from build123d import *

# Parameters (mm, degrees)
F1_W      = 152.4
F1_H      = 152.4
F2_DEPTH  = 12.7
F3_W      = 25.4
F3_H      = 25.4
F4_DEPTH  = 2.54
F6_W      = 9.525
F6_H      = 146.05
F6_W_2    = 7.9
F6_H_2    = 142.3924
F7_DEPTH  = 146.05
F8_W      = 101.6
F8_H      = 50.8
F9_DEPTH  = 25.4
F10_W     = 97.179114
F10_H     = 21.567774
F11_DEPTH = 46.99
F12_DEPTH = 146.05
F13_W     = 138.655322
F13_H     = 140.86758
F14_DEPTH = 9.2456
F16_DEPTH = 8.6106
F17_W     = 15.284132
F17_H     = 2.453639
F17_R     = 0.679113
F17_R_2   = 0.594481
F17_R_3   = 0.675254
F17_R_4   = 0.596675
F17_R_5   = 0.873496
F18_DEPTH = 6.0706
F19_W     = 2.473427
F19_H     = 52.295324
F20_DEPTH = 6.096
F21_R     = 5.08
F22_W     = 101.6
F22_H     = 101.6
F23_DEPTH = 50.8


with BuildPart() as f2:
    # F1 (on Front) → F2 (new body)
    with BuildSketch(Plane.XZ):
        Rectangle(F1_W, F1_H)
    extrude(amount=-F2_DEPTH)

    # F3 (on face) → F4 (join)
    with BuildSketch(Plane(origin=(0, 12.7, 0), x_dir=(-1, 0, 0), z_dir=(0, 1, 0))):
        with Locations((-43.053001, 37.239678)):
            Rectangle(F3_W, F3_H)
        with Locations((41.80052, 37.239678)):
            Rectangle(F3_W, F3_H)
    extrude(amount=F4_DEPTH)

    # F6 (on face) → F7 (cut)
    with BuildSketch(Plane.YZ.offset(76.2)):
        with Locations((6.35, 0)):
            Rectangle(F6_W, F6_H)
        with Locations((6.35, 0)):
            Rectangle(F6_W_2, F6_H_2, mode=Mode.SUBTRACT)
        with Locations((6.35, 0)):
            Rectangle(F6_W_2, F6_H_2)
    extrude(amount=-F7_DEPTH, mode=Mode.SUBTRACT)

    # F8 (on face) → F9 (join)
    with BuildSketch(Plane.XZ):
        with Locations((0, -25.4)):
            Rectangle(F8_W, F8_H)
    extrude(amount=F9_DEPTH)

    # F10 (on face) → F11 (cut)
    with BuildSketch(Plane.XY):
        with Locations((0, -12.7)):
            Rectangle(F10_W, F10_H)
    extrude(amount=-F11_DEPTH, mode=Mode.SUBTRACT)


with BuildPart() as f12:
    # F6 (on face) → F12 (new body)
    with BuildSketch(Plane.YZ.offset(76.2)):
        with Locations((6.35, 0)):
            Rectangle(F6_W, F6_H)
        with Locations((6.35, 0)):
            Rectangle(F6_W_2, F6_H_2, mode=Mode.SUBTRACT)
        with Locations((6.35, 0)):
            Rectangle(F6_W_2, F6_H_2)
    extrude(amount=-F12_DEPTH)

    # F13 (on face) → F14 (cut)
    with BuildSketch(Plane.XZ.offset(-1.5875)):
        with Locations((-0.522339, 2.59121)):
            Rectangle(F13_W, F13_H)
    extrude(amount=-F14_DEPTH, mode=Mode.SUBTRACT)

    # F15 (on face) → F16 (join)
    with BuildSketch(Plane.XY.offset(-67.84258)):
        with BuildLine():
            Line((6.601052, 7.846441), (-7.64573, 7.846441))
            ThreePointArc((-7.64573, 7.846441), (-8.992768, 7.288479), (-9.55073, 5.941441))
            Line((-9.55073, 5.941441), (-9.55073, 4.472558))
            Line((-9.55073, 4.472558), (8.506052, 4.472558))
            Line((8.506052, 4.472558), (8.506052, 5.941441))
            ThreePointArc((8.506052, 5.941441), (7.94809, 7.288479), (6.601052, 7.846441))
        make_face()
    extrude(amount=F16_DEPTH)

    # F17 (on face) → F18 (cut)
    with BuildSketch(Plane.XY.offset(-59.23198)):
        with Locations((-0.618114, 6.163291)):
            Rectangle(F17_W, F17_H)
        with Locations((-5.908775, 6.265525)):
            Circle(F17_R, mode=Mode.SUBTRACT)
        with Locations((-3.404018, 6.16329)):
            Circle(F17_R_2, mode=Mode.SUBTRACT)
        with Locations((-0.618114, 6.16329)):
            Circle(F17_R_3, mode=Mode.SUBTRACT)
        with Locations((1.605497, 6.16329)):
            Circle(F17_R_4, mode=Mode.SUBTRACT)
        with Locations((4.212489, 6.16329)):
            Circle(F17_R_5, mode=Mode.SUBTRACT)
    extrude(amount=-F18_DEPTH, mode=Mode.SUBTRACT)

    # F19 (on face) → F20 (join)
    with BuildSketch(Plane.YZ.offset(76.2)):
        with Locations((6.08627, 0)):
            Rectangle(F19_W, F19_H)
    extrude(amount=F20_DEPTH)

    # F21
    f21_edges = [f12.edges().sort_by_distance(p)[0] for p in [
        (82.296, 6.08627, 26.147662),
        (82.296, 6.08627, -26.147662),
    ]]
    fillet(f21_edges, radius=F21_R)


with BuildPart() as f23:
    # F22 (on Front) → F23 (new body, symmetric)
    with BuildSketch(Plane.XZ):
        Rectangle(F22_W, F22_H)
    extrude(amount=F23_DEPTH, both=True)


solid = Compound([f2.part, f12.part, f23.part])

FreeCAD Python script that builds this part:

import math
import FreeCAD as App
import Part
import Sketcher
Q = App.Units.Quantity


def edges_at(feature, points):
    """Names of the edges that pass closest to the given points."""
    edges = feature.Shape.Edges
    near = lambda p: min(range(len(edges)), key=lambda i: edges[i].distToShape(Part.Vertex(*p))[0])
    return sorted({f"Edge{near(p) + 1}" for p in points})

doc = App.newDocument("Part")
body = doc.addObject("PartDesign::Body", "Body")

sketch1 = body.newObject("Sketcher::SketchObject", "Sketch")
sketch1.AttachmentSupport = (doc.getObject("XZ_Plane"), [""])
sketch1.MapMode = "FlatFace"
sketch1.addGeometry([
    Part.LineSegment(App.Vector(-76.2, 76.2, 0), App.Vector(-76.2, -76.2, 0)),
    Part.LineSegment(App.Vector(-76.2, -76.2, 0), App.Vector(76.2, -76.2, 0)),
    Part.LineSegment(App.Vector(76.2, -76.2, 0), App.Vector(76.2, 76.2, 0)),
    Part.LineSegment(App.Vector(76.2, 76.2, 0), App.Vector(-76.2, 76.2, 0)),
], False)
sketch1.addConstraint([
    Sketcher.Constraint("Coincident", 0, 2, 1, 1),
    Sketcher.Constraint("Coincident", 1, 2, 2, 1),
    Sketcher.Constraint("Coincident", 2, 2, 3, 1),
    Sketcher.Constraint("Coincident", 3, 2, 0, 1),
    Sketcher.Constraint("Vertical", 0),
    Sketcher.Constraint("Horizontal", 1),
    Sketcher.Constraint("Vertical", 2),
    Sketcher.Constraint("Horizontal", 3),
    Sketcher.Constraint("Symmetric", 0, 2, 2, 2, -1, 1),
    Sketcher.Constraint("Equal", 3, 0),
    Sketcher.Constraint("DistanceX", 1, 1, 1, 2, Q("6 in")),
])
pad1 = body.newObject("PartDesign::Pad", "Pad")
pad1.Profile = sketch1
pad1.Length = Q("0.5 in")
pad1.Reversed = True

sketch2 = body.newObject("Sketcher::SketchObject", "Sketch001")
sketch2.AttachmentSupport = (doc.getObject("XZ_Plane"), [""])
sketch2.MapMode = "FlatFace"
sketch2.AttachmentOffset = App.Placement(App.Vector(0, 0, -0.5 * 25.4), App.Rotation())
sketch2.addGeometry([
    Part.LineSegment(App.Vector(55.753001, 49.939678, 0), App.Vector(55.753001, 24.539678, 0)),
    Part.LineSegment(App.Vector(55.753001, 24.539678, 0), App.Vector(30.353001, 24.539678, 0)),
    Part.LineSegment(App.Vector(30.353001, 24.539678, 0), App.Vector(30.353001, 49.939678, 0)),
    Part.LineSegment(App.Vector(30.353001, 49.939678, 0), App.Vector(55.753001, 49.939678, 0)),
    Part.LineSegment(App.Vector(-29.10052, 49.939678, 0), App.Vector(-29.10052, 24.539678, 0)),
    Part.LineSegment(App.Vector(-29.10052, 24.539678, 0), App.Vector(-54.50052, 24.539678, 0)),
    Part.LineSegment(App.Vector(-54.50052, 24.539678, 0), App.Vector(-54.50052, 49.939678, 0)),
    Part.LineSegment(App.Vector(-54.50052, 49.939678, 0), App.Vector(-29.10052, 49.939678, 0)),
], False)
sketch2.addConstraint([
    Sketcher.Constraint("Coincident", 0, 2, 1, 1),
    Sketcher.Constraint("Coincident", 1, 2, 2, 1),
    Sketcher.Constraint("Coincident", 2, 2, 3, 1),
    Sketcher.Constraint("Coincident", 3, 2, 0, 1),
    Sketcher.Constraint("Coincident", 4, 2, 5, 1),
    Sketcher.Constraint("Coincident", 5, 2, 6, 1),
    Sketcher.Constraint("Coincident", 6, 2, 7, 1),
    Sketcher.Constraint("Coincident", 7, 2, 4, 1),
    Sketcher.Constraint("Vertical", 0),
    Sketcher.Constraint("Horizontal", 1),
    Sketcher.Constraint("Vertical", 2),
    Sketcher.Constraint("Horizontal", 3),
    Sketcher.Constraint("Vertical", 4),
    Sketcher.Constraint("Horizontal", 5),
    Sketcher.Constraint("Vertical", 6),
    Sketcher.Constraint("Horizontal", 7),
    Sketcher.Constraint("Horizontal", 1, 2, 4, 2),
    Sketcher.Constraint("Horizontal", 3, 2, 6, 2),
    Sketcher.Constraint("Equal", 3, 5),
    Sketcher.Constraint("Equal", 7, 0),
    Sketcher.Constraint("DistanceX", 1, 2, 1, 1, Q("1 in")),
    Sketcher.Constraint("DistanceX", -1, 1, 0, 2, Q("2.195 in")),
    Sketcher.Constraint("DistanceX", 4, 2, -1, 1, 29.10052),
    Sketcher.Constraint("DistanceY", -1, 1, 0, 2, 24.539678),
])
pad2 = body.newObject("PartDesign::Pad", "Pad001")
pad2.Profile = sketch2
pad2.Length = Q("0.1 in")
pad2.Reversed = True

sketch3 = body.newObject("Sketcher::SketchObject", "Sketch002")
sketch3.AttachmentSupport = (doc.getObject("YZ_Plane"), [""])
sketch3.MapMode = "FlatFace"
sketch3.AttachmentOffset = App.Placement(App.Vector(0, 0, 3 * 25.4), App.Rotation())
sketch3.addGeometry([
    Part.LineSegment(App.Vector(1.5875, 73.025, 0), App.Vector(1.5875, -73.025, 0)),
    Part.LineSegment(App.Vector(1.5875, -73.025, 0), App.Vector(11.1125, -73.025, 0)),
    Part.LineSegment(App.Vector(11.1125, -73.025, 0), App.Vector(11.1125, 73.025, 0)),
    Part.LineSegment(App.Vector(11.1125, 73.025, 0), App.Vector(1.5875, 73.025, 0)),
], False)
sketch3.addConstraint([
    Sketcher.Constraint("Coincident", 0, 2, 1, 1),
    Sketcher.Constraint("Coincident", 1, 2, 2, 1),
    Sketcher.Constraint("Coincident", 2, 2, 3, 1),
    Sketcher.Constraint("Coincident", 3, 2, 0, 1),
    Sketcher.Constraint("Vertical", 0),
    Sketcher.Constraint("Horizontal", 1),
    Sketcher.Constraint("Vertical", 2),
    Sketcher.Constraint("Horizontal", 3),
    Sketcher.Constraint("DistanceY", 0, 2, 0, 1, Q("5.75 in")),
    Sketcher.Constraint("DistanceX", 1, 1, 1, 2, Q("0.375 in")),
    Sketcher.Constraint("DistanceX", -1, 1, 0, 2, Q("0.0625 in")),
    Sketcher.Constraint("DistanceY", 0, 2, -1, 1, Q("2.875 in")),
])
pocket1 = body.newObject("PartDesign::Pocket", "Pocket")
pocket1.Profile = sketch3
pocket1.Length = Q("5.75 in")

sketch4 = body.newObject("Sketcher::SketchObject", "Sketch003")
sketch4.AttachmentSupport = (doc.getObject("XZ_Plane"), [""])
sketch4.MapMode = "FlatFace"
sketch4.addGeometry([
    Part.LineSegment(App.Vector(-50.8, 0, 0), App.Vector(-50.8, -50.8, 0)),
    Part.LineSegment(App.Vector(-50.8, -50.8, 0), App.Vector(50.8, -50.8, 0)),
    Part.LineSegment(App.Vector(50.8, -50.8, 0), App.Vector(50.8, 0, 0)),
    Part.LineSegment(App.Vector(50.8, 0, 0), App.Vector(-50.8, 0, 0)),
], False)
sketch4.addConstraint([
    Sketcher.Constraint("Coincident", 0, 2, 1, 1),
    Sketcher.Constraint("Coincident", 1, 2, 2, 1),
    Sketcher.Constraint("Coincident", 2, 2, 3, 1),
    Sketcher.Constraint("Coincident", 3, 2, 0, 1),
    Sketcher.Constraint("Vertical", 0),
    Sketcher.Constraint("Horizontal", 1),
    Sketcher.Constraint("Vertical", 2),
    Sketcher.Constraint("Horizontal", 3),
    Sketcher.Constraint("Symmetric", 2, 2, 3, 2, -1, 1),
    Sketcher.Constraint("DistanceX", 1, 1, 1, 2, Q("4 in")),
    Sketcher.Constraint("DistanceY", 0, 2, 0, 1, Q("2 in")),
])
pad3 = body.newObject("PartDesign::Pad", "Pad002")
pad3.Profile = sketch4
pad3.Length = Q("1 in")

sketch5 = body.newObject("Sketcher::SketchObject", "Sketch004")
sketch5.AttachmentSupport = (doc.getObject("XY_Plane"), [""])
sketch5.MapMode = "FlatFace"
sketch5.addGeometry([
    Part.LineSegment(App.Vector(-48.589557, -1.916113, 0), App.Vector(-48.589557, -23.483887, 0)),
    Part.LineSegment(App.Vector(-48.589557, -23.483887, 0), App.Vector(48.589557, -23.483887, 0)),
    Part.LineSegment(App.Vector(48.589557, -23.483887, 0), App.Vector(48.589557, -1.916113, 0)),
    Part.LineSegment(App.Vector(48.589557, -1.916113, 0), App.Vector(-48.589557, -1.916113, 0)),
], False)
sketch5.addConstraint([
    Sketcher.Constraint("Coincident", 0, 2, 1, 1),
    Sketcher.Constraint("Coincident", 1, 2, 2, 1),
    Sketcher.Constraint("Coincident", 2, 2, 3, 1),
    Sketcher.Constraint("Coincident", 3, 2, 0, 1),
    Sketcher.Constraint("Vertical", 0),
    Sketcher.Constraint("Horizontal", 1),
    Sketcher.Constraint("Vertical", 2),
    Sketcher.Constraint("Horizontal", 3),
    Sketcher.Constraint("DistanceX", 1, 1, 1, 2, 97.179114),
    Sketcher.Constraint("DistanceY", 0, 2, 0, 1, 21.567774),
    Sketcher.Constraint("DistanceX", 0, 2, -1, 1, 48.589557),
    Sketcher.Constraint("DistanceY", 0, 2, -1, 1, 23.483887),
])
pocket2 = body.newObject("PartDesign::Pocket", "Pocket001")
pocket2.Profile = sketch5
pocket2.Length = Q("1.85 in")
body2 = doc.addObject("PartDesign::Body", "Body001")

sketch6 = body2.newObject("Sketcher::SketchObject", "Sketch005")
sketch6.AttachmentSupport = (doc.getObject("YZ_Plane001"), [""])
sketch6.MapMode = "FlatFace"
sketch6.AttachmentOffset = App.Placement(App.Vector(0, 0, 3 * 25.4), App.Rotation())
sketch6.addGeometry([
    Part.LineSegment(App.Vector(1.5875, 73.025, 0), App.Vector(1.5875, -73.025, 0)),
    Part.LineSegment(App.Vector(1.5875, -73.025, 0), App.Vector(11.1125, -73.025, 0)),
    Part.LineSegment(App.Vector(11.1125, -73.025, 0), App.Vector(11.1125, 73.025, 0)),
    Part.LineSegment(App.Vector(11.1125, 73.025, 0), App.Vector(1.5875, 73.025, 0)),
], False)
sketch6.addConstraint([
    Sketcher.Constraint("Coincident", 0, 2, 1, 1),
    Sketcher.Constraint("Coincident", 1, 2, 2, 1),
    Sketcher.Constraint("Coincident", 2, 2, 3, 1),
    Sketcher.Constraint("Coincident", 3, 2, 0, 1),
    Sketcher.Constraint("Vertical", 0),
    Sketcher.Constraint("Horizontal", 1),
    Sketcher.Constraint("Vertical", 2),
    Sketcher.Constraint("Horizontal", 3),
    Sketcher.Constraint("DistanceY", 0, 2, 0, 1, Q("5.75 in")),
    Sketcher.Constraint("DistanceX", 1, 1, 1, 2, Q("0.375 in")),
    Sketcher.Constraint("DistanceX", -1, 1, 0, 2, Q("0.0625 in")),
    Sketcher.Constraint("DistanceY", 0, 2, -1, 1, Q("2.875 in")),
])
pad4 = body2.newObject("PartDesign::Pad", "Pad003")
pad4.Profile = sketch6
pad4.Length = Q("5.75 in")
pad4.Reversed = True

sketch7 = body2.newObject("Sketcher::SketchObject", "Sketch006")
sketch7.AttachmentSupport = (doc.getObject("XZ_Plane001"), [""])
sketch7.MapMode = "FlatFace"
sketch7.AttachmentOffset = App.Placement(App.Vector(0, 0, -0.0625 * 25.4), App.Rotation())
sketch7.addGeometry([
    Part.LineSegment(App.Vector(-69.85, 73.025, 0), App.Vector(-69.85, -67.84258, 0)),
    Part.LineSegment(App.Vector(-69.85, -67.84258, 0), App.Vector(68.805322, -67.84258, 0)),
    Part.LineSegment(App.Vector(68.805322, -67.84258, 0), App.Vector(68.805322, 73.025, 0)),
    Part.LineSegment(App.Vector(68.805322, 73.025, 0), App.Vector(-69.85, 73.025, 0)),
], False)
sketch7.addConstraint([
    Sketcher.Constraint("Coincident", 0, 2, 1, 1),
    Sketcher.Constraint("Coincident", 1, 2, 2, 1),
    Sketcher.Constraint("Coincident", 2, 2, 3, 1),
    Sketcher.Constraint("Coincident", 3, 2, 0, 1),
    Sketcher.Constraint("Vertical", 0),
    Sketcher.Constraint("Horizontal", 1),
    Sketcher.Constraint("Vertical", 2),
    Sketcher.Constraint("Horizontal", 3),
    Sketcher.Constraint("DistanceX", 0, 2, -1, 1, Q("2.75 in")),
    Sketcher.Constraint("DistanceY", -1, 1, 2, 2, Q("2.875 in")),
    Sketcher.Constraint("DistanceY", 0, 2, 0, 1, 140.86758),
    Sketcher.Constraint("DistanceX", 1, 1, 1, 2, 138.655322),
])
pocket3 = body2.newObject("PartDesign::Pocket", "Pocket002")
pocket3.Profile = sketch7
pocket3.Length = Q("0.364 in")

sketch8 = body2.newObject("Sketcher::SketchObject", "Sketch007")
sketch8.AttachmentSupport = (doc.getObject("XY_Plane001"), [""])
sketch8.MapMode = "FlatFace"
sketch8.AttachmentOffset = App.Placement(App.Vector(0, 0, -67.84258), App.Rotation())
sketch8.addGeometry([
    Part.LineSegment(App.Vector(6.601052, 7.846441, 0), App.Vector(-7.64573, 7.846441, 0)),
    Part.ArcOfCircle(Part.Circle(App.Vector(-7.645729, 5.94144, 0), App.Vector(0, 0, 1), 1.905001), math.radians(90.000043), math.radians(179.999957)),
    Part.LineSegment(App.Vector(-9.55073, 5.941441, 0), App.Vector(-9.55073, 4.472558, 0)),
    Part.LineSegment(App.Vector(-9.55073, 4.472558, 0), App.Vector(8.506052, 4.472558, 0)),
    Part.LineSegment(App.Vector(8.506052, 4.472558, 0), App.Vector(8.506052, 5.941441, 0)),
    Part.ArcOfCircle(Part.Circle(App.Vector(6.601051, 5.94144, 0), App.Vector(0, 0, 1), 1.905001), math.radians(0.000043), math.radians(89.999957)),
], False)
sketch8.addConstraint([
    Sketcher.Constraint("Tangent", 0, 2, 1, 1),
    Sketcher.Constraint("Tangent", 1, 2, 2, 1),
    Sketcher.Constraint("Coincident", 2, 2, 3, 1),
    Sketcher.Constraint("Coincident", 3, 2, 4, 1),
    Sketcher.Constraint("Tangent", 4, 2, 5, 1),
    Sketcher.Constraint("Tangent", 5, 2, 0, 1),
    Sketcher.Constraint("Horizontal", 0),
    Sketcher.Constraint("Vertical", 2),
    Sketcher.Constraint("Horizontal", 3),
    Sketcher.Constraint("Vertical", 4),
    Sketcher.Constraint("Equal", 1, 5),
    Sketcher.Constraint("Radius", 1, Q("0.0750001 in")),
    Sketcher.Constraint("DistanceX", 3, 1, 3, 2, 18.056782),
    Sketcher.Constraint("DistanceY", 2, 2, 2, 1, 1.468883),
    Sketcher.Constraint("DistanceX", 1, 3, -1, 1, 7.645729),
    Sketcher.Constraint("DistanceY", -1, 1, 1, 3, 5.94144),
])
pad5 = body2.newObject("PartDesign::Pad", "Pad004")
pad5.Profile = sketch8
pad5.Length = Q("0.339 in")

sketch9 = body2.newObject("Sketcher::SketchObject", "Sketch008")
sketch9.AttachmentSupport = (doc.getObject("XY_Plane001"), [""])
sketch9.MapMode = "FlatFace"
sketch9.AttachmentOffset = App.Placement(App.Vector(0, 0, -59.23198), App.Rotation())
sketch9.addGeometry([
    Part.LineSegment(App.Vector(-8.26018, 7.39011, 0), App.Vector(-8.26018, 4.936471, 0)),
    Part.LineSegment(App.Vector(-8.26018, 4.936471, 0), App.Vector(7.023952, 4.936471, 0)),
    Part.LineSegment(App.Vector(7.023952, 4.936471, 0), App.Vector(7.023952, 7.39011, 0)),
    Part.LineSegment(App.Vector(7.023952, 7.39011, 0), App.Vector(-8.26018, 7.39011, 0)),
    Part.Circle(App.Vector(-5.908775, 6.265525, 0), App.Vector(0, 0, 1), 0.679113),
    Part.Circle(App.Vector(-3.404018, 6.16329, 0), App.Vector(0, 0, 1), 0.594481),
    Part.Circle(App.Vector(-0.618114, 6.16329, 0), App.Vector(0, 0, 1), 0.675254),
    Part.Circle(App.Vector(1.605497, 6.16329, 0), App.Vector(0, 0, 1), 0.596675),
    Part.Circle(App.Vector(4.212489, 6.16329, 0), App.Vector(0, 0, 1), 0.873496),
], False)
sketch9.addConstraint([
    Sketcher.Constraint("Coincident", 0, 2, 1, 1),
    Sketcher.Constraint("Coincident", 1, 2, 2, 1),
    Sketcher.Constraint("Coincident", 2, 2, 3, 1),
    Sketcher.Constraint("Coincident", 3, 2, 0, 1),
    Sketcher.Constraint("Vertical", 0),
    Sketcher.Constraint("Horizontal", 1),
    Sketcher.Constraint("Vertical", 2),
    Sketcher.Constraint("Horizontal", 3),
    Sketcher.Constraint("Horizontal", 5, 3, 6, 3),
    Sketcher.Constraint("Horizontal", 6, 3, 7, 3),
    Sketcher.Constraint("Horizontal", 7, 3, 8, 3),
    Sketcher.Constraint("Diameter", 7, 1.19335),
    Sketcher.Constraint("DistanceY", 0, 2, 0, 1, Q("0.0966 in")),
    Sketcher.Constraint("Diameter", 4, 1.358226),
    Sketcher.Constraint("Diameter", 5, 1.188962),
    Sketcher.Constraint("Diameter", 6, 1.350508),
    Sketcher.Constraint("Diameter", 8, 1.746992),
    Sketcher.Constraint("DistanceY", 0, 2, 5, 3, Q("0.0482999 in")),
    Sketcher.Constraint("DistanceX", 1, 1, 1, 2, 15.284132),
    Sketcher.Constraint("DistanceX", 5, 3, -1, 1, 3.404018),
    Sketcher.Constraint("DistanceY", -1, 1, 5, 3, 6.16329),
    Sketcher.Constraint("DistanceX", -1, 1, 8, 3, 4.212489),
    Sketcher.Constraint("DistanceX", 0, 2, -1, 1, 8.26018),
    Sketcher.Constraint("DistanceX", 4, 3, 6, 3, 5.290661),
    Sketcher.Constraint("DistanceX", 6, 3, 7, 3, 2.223611),
    Sketcher.Constraint("DistanceX", 7, 3, 8, 3, 2.606992),
    Sketcher.Constraint("DistanceY", -1, 1, 4, 3, 6.265525),
])
pocket4 = body2.newObject("PartDesign::Pocket", "Pocket003")
pocket4.Profile = sketch9
pocket4.Length = Q("0.239 in")

sketch10 = body2.newObject("Sketcher::SketchObject", "Sketch009")
sketch10.AttachmentSupport = (doc.getObject("YZ_Plane001"), [""])
sketch10.MapMode = "FlatFace"
sketch10.AttachmentOffset = App.Placement(App.Vector(0, 0, 3 * 25.4), App.Rotation())
sketch10.addGeometry([
    Part.LineSegment(App.Vector(4.849557, 26.147662, 0), App.Vector(4.849557, -26.147662, 0)),
    Part.LineSegment(App.Vector(4.849557, -26.147662, 0), App.Vector(7.322984, -26.147662, 0)),
    Part.LineSegment(App.Vector(7.322984, -26.147662, 0), App.Vector(7.322984, 26.147662, 0)),
    Part.LineSegment(App.Vector(7.322984, 26.147662, 0), App.Vector(4.849557, 26.147662, 0)),
], False)
sketch10.addConstraint([
    Sketcher.Constraint("Coincident", 0, 2, 1, 1),
    Sketcher.Constraint("Coincident", 1, 2, 2, 1),
    Sketcher.Constraint("Coincident", 2, 2, 3, 1),
    Sketcher.Constraint("Coincident", 3, 2, 0, 1),
    Sketcher.Constraint("Vertical", 0),
    Sketcher.Constraint("Horizontal", 1),
    Sketcher.Constraint("Vertical", 2),
    Sketcher.Constraint("Horizontal", 3),
    Sketcher.Constraint("DistanceX", 1, 1, 1, 2, 2.473427),
    Sketcher.Constraint("DistanceY", 0, 2, 0, 1, 52.295324),
    Sketcher.Constraint("DistanceX", -1, 1, 0, 2, 4.849557),
    Sketcher.Constraint("DistanceY", 0, 2, -1, 1, 26.147662),
])
pad6 = body2.newObject("PartDesign::Pad", "Pad005")
pad6.Profile = sketch10
pad6.Length = Q("0.24 in")
doc.recompute()

fillet = body2.newObject("PartDesign::Fillet", "Fillet")
fillet.Base = (pad6, edges_at(pad6, [(82.296, 6.086, 26.148), (82.296, 6.086, -26.148)]))
fillet.Radius = Q("0.2 in")
body3 = doc.addObject("PartDesign::Body", "Body002")

sketch11 = body3.newObject("Sketcher::SketchObject", "Sketch010")
sketch11.AttachmentSupport = (doc.getObject("XZ_Plane002"), [""])
sketch11.MapMode = "FlatFace"
sketch11.addGeometry([
    Part.LineSegment(App.Vector(-50.8, 50.8, 0), App.Vector(-50.8, -50.8, 0)),
    Part.LineSegment(App.Vector(-50.8, -50.8, 0), App.Vector(50.8, -50.8, 0)),
    Part.LineSegment(App.Vector(50.8, -50.8, 0), App.Vector(50.8, 50.8, 0)),
    Part.LineSegment(App.Vector(50.8, 50.8, 0), App.Vector(-50.8, 50.8, 0)),
], False)
sketch11.addConstraint([
    Sketcher.Constraint("Coincident", 0, 2, 1, 1),
    Sketcher.Constraint("Coincident", 1, 2, 2, 1),
    Sketcher.Constraint("Coincident", 2, 2, 3, 1),
    Sketcher.Constraint("Coincident", 3, 2, 0, 1),
    Sketcher.Constraint("Vertical", 0),
    Sketcher.Constraint("Horizontal", 1),
    Sketcher.Constraint("Vertical", 2),
    Sketcher.Constraint("Horizontal", 3),
    Sketcher.Constraint("Symmetric", 0, 2, 2, 2, -1, 1),
    Sketcher.Constraint("Equal", 3, 0),
    Sketcher.Constraint("DistanceX", 1, 1, 1, 2, Q("4 in")),
])
pad7 = body3.newObject("PartDesign::Pad", "Pad006")
pad7.Profile = sketch11
pad7.Length = Q("4 in")
pad7.Midplane = True

doc.recompute()
